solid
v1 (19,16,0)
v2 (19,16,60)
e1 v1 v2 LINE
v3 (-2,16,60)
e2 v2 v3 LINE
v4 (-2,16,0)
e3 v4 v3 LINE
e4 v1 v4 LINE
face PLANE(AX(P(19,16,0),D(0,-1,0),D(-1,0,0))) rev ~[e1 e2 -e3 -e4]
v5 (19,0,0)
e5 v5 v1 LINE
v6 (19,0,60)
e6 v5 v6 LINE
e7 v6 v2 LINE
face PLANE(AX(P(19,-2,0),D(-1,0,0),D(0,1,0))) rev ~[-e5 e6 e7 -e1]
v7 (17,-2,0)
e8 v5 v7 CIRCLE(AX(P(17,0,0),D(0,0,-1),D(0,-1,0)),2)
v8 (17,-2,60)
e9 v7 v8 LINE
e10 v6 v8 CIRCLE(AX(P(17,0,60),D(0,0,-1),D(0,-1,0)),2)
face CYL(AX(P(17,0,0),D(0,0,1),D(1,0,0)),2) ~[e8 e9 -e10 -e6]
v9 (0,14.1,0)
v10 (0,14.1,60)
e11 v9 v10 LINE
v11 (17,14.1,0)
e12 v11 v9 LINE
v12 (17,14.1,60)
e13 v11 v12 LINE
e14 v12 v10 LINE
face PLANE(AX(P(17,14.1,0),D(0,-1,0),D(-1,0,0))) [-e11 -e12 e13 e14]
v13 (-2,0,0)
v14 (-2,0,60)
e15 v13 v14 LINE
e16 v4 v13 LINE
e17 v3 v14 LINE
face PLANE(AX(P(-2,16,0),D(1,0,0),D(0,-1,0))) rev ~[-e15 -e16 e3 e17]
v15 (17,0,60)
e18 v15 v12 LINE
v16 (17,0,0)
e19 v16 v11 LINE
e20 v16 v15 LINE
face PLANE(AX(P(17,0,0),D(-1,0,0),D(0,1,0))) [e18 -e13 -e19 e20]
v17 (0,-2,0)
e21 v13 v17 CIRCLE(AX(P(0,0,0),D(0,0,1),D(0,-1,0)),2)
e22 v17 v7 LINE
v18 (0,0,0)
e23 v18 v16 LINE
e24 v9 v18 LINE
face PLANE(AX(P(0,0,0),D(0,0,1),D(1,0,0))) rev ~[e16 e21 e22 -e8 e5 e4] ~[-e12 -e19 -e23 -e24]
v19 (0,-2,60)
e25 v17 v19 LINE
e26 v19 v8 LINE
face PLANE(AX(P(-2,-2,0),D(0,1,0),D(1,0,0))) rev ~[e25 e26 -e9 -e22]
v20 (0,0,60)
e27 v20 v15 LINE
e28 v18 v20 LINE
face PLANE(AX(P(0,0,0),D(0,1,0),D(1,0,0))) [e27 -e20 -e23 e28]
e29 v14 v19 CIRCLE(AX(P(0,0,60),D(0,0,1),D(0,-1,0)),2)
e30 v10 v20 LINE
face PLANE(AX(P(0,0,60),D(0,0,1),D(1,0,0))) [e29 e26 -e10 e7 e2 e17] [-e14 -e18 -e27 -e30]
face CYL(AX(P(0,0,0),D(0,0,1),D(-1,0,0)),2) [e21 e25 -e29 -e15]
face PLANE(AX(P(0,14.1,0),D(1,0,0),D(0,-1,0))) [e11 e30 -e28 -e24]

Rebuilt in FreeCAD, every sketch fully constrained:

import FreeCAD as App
import Part
import Sketcher
Q = App.Units.Quantity


def edges_at(feature, points):
    """Names of the edges that pass closest to the given points."""
    edges = feature.Shape.Edges
    near = lambda p: min(range(len(edges)), key=lambda i: edges[i].distToShape(Part.Vertex(*p))[0])
    return sorted({f"Edge{near(p) + 1}" for p in points})


def add_polygon(sketch, points):
    """Adds a closed chain of lines whose ends are joined by coincident constraints."""
    first, n = sketch.GeometryCount, len(points)
    for a, b in zip(points, points[1:] + points[:1]):
        sketch.addGeometry(Part.LineSegment(App.Vector(*a, 0), App.Vector(*b, 0)), False)
    for i in range(n):
        sketch.addConstraint(Sketcher.Constraint("Coincident", first + i, 2, first + (i + 1) % n, 1))

doc = App.newDocument("Part")
body = doc.addObject("PartDesign::Body", "Body")

sketch1 = body.newObject("Sketcher::SketchObject", "Sketch")
sketch1.AttachmentSupport = (doc.getObject("XY_Plane"), [""])
sketch1.MapMode = "FlatFace"
add_polygon(sketch1, [(-2, 16), (-2, -2), (19, -2), (19, 16)])
add_polygon(sketch1, [(17, 0), (0, 0), (0, 14), (17, 14)])
sketch1.addConstraint(Sketcher.Constraint("Vertical", 0))
sketch1.addConstraint(Sketcher.Constraint("Horizontal", 1))
sketch1.addConstraint(Sketcher.Constraint("Vertical", 2))
sketch1.addConstraint(Sketcher.Constraint("Horizontal", 3))
sketch1.addConstraint(Sketcher.Constraint("Horizontal", 4))
sketch1.addConstraint(Sketcher.Constraint("Vertical", 5))
sketch1.addConstraint(Sketcher.Constraint("Horizontal", 6))
sketch1.addConstraint(Sketcher.Constraint("Vertical", 7))
sketch1.addConstraint(Sketcher.Constraint("Coincident", 4, 2, -1, 1))
sketch1.addConstraint(Sketcher.Constraint("DistanceX", 4, 2, 4, 1, Q("17 mm")))
sketch1.addConstraint(Sketcher.Constraint("DistanceY", 5, 1, 5, 2, Q("14.1 mm")))
sketch1.addConstraint(Sketcher.Constraint("DistanceX", 1, 1, 1, 2, Q("21 mm")))
sketch1.addConstraint(Sketcher.Constraint("DistanceY", 0, 2, 0, 1, Q("18 mm")))
sketch1.addConstraint(Sketcher.Constraint("DistanceX", 0, 2, -1, 1, Q("2 mm")))
sketch1.addConstraint(Sketcher.Constraint("DistanceY", 0, 2, -1, 1, Q("2 mm")))
pad1 = body.newObject("PartDesign::Pad", "Pad")
pad1.Profile = sketch1
pad1.Length = 60
doc.recompute()

fillet = body.newObject("PartDesign::Fillet", "Fillet")
fillet.Base = (pad1, edges_at(pad1, [(-2, -2, 30), (19, -2, 30)]))
fillet.Radius = 2

doc.recompute()
